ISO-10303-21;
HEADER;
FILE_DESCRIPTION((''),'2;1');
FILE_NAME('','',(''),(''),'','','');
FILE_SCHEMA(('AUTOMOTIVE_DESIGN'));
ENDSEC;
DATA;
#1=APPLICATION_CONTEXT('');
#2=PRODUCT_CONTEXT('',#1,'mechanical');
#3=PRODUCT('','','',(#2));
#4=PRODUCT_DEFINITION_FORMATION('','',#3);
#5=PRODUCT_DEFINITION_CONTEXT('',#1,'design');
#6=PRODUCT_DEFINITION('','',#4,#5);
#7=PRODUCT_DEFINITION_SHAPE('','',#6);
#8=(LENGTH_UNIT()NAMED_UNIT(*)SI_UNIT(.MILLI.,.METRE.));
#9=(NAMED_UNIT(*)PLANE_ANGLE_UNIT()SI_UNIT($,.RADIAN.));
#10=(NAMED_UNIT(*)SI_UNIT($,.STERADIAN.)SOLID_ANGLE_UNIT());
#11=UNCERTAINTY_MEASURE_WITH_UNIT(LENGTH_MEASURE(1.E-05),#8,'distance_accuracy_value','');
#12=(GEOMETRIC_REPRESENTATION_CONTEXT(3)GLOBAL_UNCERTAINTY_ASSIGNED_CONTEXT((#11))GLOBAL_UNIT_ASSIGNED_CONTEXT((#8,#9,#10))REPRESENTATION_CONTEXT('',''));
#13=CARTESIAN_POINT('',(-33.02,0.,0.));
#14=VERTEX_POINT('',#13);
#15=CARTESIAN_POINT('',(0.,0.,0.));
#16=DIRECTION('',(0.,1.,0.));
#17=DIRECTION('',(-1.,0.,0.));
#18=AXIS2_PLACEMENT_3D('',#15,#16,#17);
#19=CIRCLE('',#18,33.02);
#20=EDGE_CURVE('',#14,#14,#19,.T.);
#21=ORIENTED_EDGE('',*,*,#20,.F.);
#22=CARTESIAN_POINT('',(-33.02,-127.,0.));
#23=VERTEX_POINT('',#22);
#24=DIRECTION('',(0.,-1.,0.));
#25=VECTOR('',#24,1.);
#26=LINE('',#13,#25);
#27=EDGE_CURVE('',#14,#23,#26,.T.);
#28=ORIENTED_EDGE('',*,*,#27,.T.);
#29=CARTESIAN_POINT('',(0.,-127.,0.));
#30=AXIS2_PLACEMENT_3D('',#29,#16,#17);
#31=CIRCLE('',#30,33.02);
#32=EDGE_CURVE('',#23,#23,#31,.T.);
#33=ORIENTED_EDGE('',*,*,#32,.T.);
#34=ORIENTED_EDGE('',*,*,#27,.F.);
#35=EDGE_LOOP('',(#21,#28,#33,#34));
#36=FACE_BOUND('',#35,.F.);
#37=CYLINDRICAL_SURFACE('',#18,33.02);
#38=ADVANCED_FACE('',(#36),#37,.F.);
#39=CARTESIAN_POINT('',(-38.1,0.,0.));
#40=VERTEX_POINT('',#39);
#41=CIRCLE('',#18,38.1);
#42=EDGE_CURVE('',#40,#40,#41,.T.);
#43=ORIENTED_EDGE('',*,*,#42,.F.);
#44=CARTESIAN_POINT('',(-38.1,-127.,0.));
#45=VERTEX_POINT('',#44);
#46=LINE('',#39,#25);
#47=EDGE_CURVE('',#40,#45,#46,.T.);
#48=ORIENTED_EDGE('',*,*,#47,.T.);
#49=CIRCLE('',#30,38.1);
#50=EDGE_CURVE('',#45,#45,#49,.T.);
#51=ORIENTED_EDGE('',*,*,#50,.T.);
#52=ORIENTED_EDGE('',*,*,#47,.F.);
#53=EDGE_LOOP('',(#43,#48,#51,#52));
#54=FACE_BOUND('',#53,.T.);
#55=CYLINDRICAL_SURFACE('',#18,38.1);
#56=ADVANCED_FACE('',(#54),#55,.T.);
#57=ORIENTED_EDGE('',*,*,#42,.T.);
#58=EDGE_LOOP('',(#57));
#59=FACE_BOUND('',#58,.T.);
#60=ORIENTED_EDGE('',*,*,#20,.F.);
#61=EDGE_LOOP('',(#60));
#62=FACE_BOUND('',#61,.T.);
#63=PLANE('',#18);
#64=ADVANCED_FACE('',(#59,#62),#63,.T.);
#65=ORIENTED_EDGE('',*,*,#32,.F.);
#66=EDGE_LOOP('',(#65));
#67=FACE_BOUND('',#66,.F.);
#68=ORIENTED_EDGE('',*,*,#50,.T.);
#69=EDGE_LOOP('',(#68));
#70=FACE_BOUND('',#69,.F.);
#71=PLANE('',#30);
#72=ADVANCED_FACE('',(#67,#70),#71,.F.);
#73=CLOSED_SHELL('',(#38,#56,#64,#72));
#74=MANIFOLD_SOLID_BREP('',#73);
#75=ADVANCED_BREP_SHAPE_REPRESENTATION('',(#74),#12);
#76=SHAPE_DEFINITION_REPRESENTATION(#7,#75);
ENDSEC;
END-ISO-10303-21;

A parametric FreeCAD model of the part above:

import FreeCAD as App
import Part
import Sketcher
Q = App.Units.Quantity

doc = App.newDocument("Part")
body = doc.addObject("PartDesign::Body", "Body")

# Sketch on XZ plane
sketch1 = body.newObject("Sketcher::SketchObject", "Sketch")
sketch1.AttachmentSupport = (doc.getObject("XZ_Plane"), [""])
sketch1.MapMode = "FlatFace"
sketch1.addGeometry(Part.Circle(App.Vector(0, 0, 0), App.Vector(0, 0, 1), 38.1), False)
sketch1.addGeometry(Part.Circle(App.Vector(0, 0, 0), App.Vector(0, 0, 1), 33.02), False)
sketch1.addConstraint(Sketcher.Constraint("Coincident", 0, 3, -1, 1))
sketch1.addConstraint(Sketcher.Constraint("Coincident", 1, 3, -1, 1))
sketch1.addConstraint(Sketcher.Constraint("Diameter", 0, Q("3 in")))
sketch1.addConstraint(Sketcher.Constraint("Diameter", 1, Q("2.6 in")))
pad1 = body.newObject("PartDesign::Pad", "Pad")
pad1.Profile = sketch1
pad1.Length = Q("5 in")

doc.recompute()
